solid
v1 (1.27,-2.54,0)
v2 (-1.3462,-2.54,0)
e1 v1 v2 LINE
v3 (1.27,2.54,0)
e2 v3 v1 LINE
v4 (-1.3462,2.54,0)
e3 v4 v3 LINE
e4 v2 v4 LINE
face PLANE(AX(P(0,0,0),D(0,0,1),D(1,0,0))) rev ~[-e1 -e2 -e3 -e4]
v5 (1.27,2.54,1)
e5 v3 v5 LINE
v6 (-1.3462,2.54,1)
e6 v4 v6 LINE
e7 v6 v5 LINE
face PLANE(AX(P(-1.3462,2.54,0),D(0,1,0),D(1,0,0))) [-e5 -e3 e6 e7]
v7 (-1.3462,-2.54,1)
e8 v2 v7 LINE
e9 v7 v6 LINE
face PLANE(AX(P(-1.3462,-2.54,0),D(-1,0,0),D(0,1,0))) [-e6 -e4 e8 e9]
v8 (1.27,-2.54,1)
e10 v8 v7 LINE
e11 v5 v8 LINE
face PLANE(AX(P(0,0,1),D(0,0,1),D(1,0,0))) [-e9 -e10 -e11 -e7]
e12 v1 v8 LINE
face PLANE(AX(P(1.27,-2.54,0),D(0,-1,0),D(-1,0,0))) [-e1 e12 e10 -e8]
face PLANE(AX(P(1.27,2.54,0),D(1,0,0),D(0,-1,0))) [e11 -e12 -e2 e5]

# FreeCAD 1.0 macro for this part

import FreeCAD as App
import Part
import Sketcher
Q = App.Units.Quantity


def add_polygon(sketch, points):
    """Adds a closed chain of lines whose ends are joined by coincident constraints."""
    first, n = sketch.GeometryCount, len(points)
    for a, b in zip(points, points[1:] + points[:1]):
        sketch.addGeometry(Part.LineSegment(App.Vector(*a, 0), App.Vector(*b, 0)), False)
    for i in range(n):
        sketch.addConstraint(Sketcher.Constraint("Coincident", first + i, 2, first + (i + 1) % n, 1))

doc = App.newDocument("Part")
body = doc.addObject("PartDesign::Body", "Body")

# Sketch on XY plane
sketch1 = body.newObject("Sketcher::SketchObject", "Sketch")
sketch1.AttachmentSupport = (doc.getObject("XY_Plane"), [""])
sketch1.MapMode = "FlatFace"
add_polygon(sketch1, [(1.27, 2.54), (-1.3462, 2.54), (-1.3462, -2.54), (1.27, -2.54)])  # lines 0-3
sketch1.addConstraint([
    Sketcher.Constraint("Horizontal", 0),
    Sketcher.Constraint("Vertical", 1),
    Sketcher.Constraint("Horizontal", 2),
    Sketcher.Constraint("Vertical", 3),
    Sketcher.Constraint("DistanceY", 1, 2, 1, 1, Q("0.2 in")),
    Sketcher.Constraint("DistanceY", -1, 1, 0, 2, Q("0.1 in")),
    Sketcher.Constraint("DistanceX", 0, 2, 0, 1, Q("0.103 in")),
    Sketcher.Constraint("DistanceX", -1, 1, 2, 2, Q("0.05 in")),
])
pad1 = body.newObject("PartDesign::Pad", "Pad")
pad1.Profile = sketch1
pad1.Length = 1

doc.recompute()
